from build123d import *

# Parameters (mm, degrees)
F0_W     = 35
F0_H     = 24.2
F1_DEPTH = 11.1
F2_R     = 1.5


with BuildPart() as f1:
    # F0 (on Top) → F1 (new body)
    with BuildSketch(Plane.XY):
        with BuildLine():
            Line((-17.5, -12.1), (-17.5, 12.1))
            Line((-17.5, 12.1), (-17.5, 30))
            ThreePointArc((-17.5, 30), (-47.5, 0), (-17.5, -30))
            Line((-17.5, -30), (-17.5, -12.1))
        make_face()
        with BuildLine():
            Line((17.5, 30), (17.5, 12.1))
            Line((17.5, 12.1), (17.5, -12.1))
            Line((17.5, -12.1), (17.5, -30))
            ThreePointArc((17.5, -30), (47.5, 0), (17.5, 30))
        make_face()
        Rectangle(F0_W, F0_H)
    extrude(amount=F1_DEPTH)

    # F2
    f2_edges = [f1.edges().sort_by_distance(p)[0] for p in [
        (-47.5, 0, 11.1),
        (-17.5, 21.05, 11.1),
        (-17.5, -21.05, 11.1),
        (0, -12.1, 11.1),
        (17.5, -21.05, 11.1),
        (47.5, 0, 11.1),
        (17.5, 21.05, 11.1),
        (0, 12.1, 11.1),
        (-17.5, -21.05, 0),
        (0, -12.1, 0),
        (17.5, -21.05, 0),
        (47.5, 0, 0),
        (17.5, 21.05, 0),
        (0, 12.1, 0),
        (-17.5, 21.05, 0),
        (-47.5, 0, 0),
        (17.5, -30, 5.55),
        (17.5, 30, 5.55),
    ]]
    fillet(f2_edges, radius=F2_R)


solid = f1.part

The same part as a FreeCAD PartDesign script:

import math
import FreeCAD as App
import Part
import Sketcher


def edges_at(feature, points):
    """Names of the edges that pass closest to the given points."""
    edges = feature.Shape.Edges
    near = lambda p: min(range(len(edges)), key=lambda i: edges[i].distToShape(Part.Vertex(*p))[0])
    return sorted({f"Edge{near(p) + 1}" for p in points})

doc = App.newDocument("Part")
params = doc.addObject("Spreadsheet::Sheet", "Params")
for row, (alias, value) in enumerate([
    ("sketch1_radius", "30 mm"),
    ("sketch1_width", "35 mm"),
    ("sketch1_height", "17.9 mm"),
    ("pad1_length", "11.1 mm"),
    ("fillet_radius", "1.5 mm"),
], start=1):
    params.set(f"A{row}", alias)
    params.set(f"B{row}", "=" + value)
    params.setAlias(f"B{row}", alias)

body = doc.addObject("PartDesign::Body", "Body")

# Sketch on XY plane
sketch1 = body.newObject("Sketcher::SketchObject", "Sketch")
sketch1.AttachmentSupport = (doc.getObject("XY_Plane"), [""])
sketch1.MapMode = "FlatFace"
sketch1.addGeometry([
    Part.ArcOfCircle(Part.Circle(App.Vector(-18, 0, 0), App.Vector(0, 0, 1), 30), math.radians(90), math.radians(270)),  # 0
    Part.LineSegment(App.Vector(-18, -30, 0), App.Vector(-18, -12, 0)),  # 1
    Part.LineSegment(App.Vector(-18, -12, 0), App.Vector(18, -12, 0)),  # 2
    Part.LineSegment(App.Vector(18, -12, 0), App.Vector(18, -30, 0)),  # 3
    Part.ArcOfCircle(Part.Circle(App.Vector(18, 0, 0), App.Vector(0, 0, 1), 30), math.radians(-90), math.radians(90)),  # 4
    Part.LineSegment(App.Vector(18, 30, 0), App.Vector(18, 12, 0)),  # 5
    Part.LineSegment(App.Vector(18, 12, 0), App.Vector(-18, 12, 0)),  # 6
    Part.LineSegment(App.Vector(-18, 12, 0), App.Vector(-18, 30, 0)),  # 7
], False)
sketch1.addConstraint([
    Sketcher.Constraint("Coincident", 0, 2, 1, 1),
    Sketcher.Constraint("Coincident", 1, 2, 2, 1),
    Sketcher.Constraint("Coincident", 2, 2, 3, 1),
    Sketcher.Constraint("Coincident", 3, 2, 4, 1),
    Sketcher.Constraint("Coincident", 4, 2, 5, 1),
    Sketcher.Constraint("Coincident", 5, 2, 6, 1),
    Sketcher.Constraint("Coincident", 6, 2, 7, 1),
    Sketcher.Constraint("Coincident", 7, 2, 0, 1),
    Sketcher.Constraint("Vertical", 1),
    Sketcher.Constraint("Horizontal", 2),
    Sketcher.Constraint("Vertical", 3),
    Sketcher.Constraint("Vertical", 5),
    Sketcher.Constraint("Horizontal", 6),
    Sketcher.Constraint("Vertical", 7),
    Sketcher.Constraint("Equal", 0, 4),
    Sketcher.Constraint("Symmetric", 0, 3, 4, 3, -1, 1),
    Sketcher.Constraint("Symmetric", 1, 2, 5, 2, -1, 1),
    Sketcher.Constraint("Symmetric", 0, 2, 3, 2, -2),
    Sketcher.Constraint("Vertical", 4, 3, 2, 2),
    Sketcher.Constraint("Vertical", 1, 2, 6, 2),
    Sketcher.Constraint("Radius", 0, 30.0),
    Sketcher.Constraint("DistanceX", 2, 1, 2, 2, 35.0),
    Sketcher.Constraint("DistanceY", 1, 1, 1, 2, 17.9),
])
sketch1.setExpression("Constraints[20]", "Params.sketch1_radius")
sketch1.setExpression("Constraints[21]", "Params.sketch1_width")
sketch1.setExpression("Constraints[22]", "Params.sketch1_height")
pad1 = body.newObject("PartDesign::Pad", "Pad")
pad1.Profile = sketch1
pad1.setExpression("Length", "Params.pad1_length")
doc.recompute()

fillet = body.newObject("PartDesign::Fillet", "Fillet")
fillet.Base = (pad1, edges_at(pad1, [
    (-47.5, 0, 11.1),
    (-17.5, 21.05, 11.1),
    (-17.5, -21.05, 11.1),
    (0, -12.1, 11.1),
    (17.5, -21.05, 11.1),
    (47.5, 0, 11.1),
    (17.5, 21.05, 11.1),
    (0, 12.1, 11.1),
    (-17.5, -21.05, 0),
    (0, -12.1, 0),
    (17.5, -21.05, 0),
    (47.5, 0, 0),
    (17.5, 21.05, 0),
    (0, 12.1, 0),
    (-17.5, 21.05, 0),
    (-47.5, 0, 0),
    (17.5, -30, 5.55),
    (17.5, 30, 5.55),
]))
fillet.setExpression("Radius", "Params.fillet_radius")

doc.recompute()
